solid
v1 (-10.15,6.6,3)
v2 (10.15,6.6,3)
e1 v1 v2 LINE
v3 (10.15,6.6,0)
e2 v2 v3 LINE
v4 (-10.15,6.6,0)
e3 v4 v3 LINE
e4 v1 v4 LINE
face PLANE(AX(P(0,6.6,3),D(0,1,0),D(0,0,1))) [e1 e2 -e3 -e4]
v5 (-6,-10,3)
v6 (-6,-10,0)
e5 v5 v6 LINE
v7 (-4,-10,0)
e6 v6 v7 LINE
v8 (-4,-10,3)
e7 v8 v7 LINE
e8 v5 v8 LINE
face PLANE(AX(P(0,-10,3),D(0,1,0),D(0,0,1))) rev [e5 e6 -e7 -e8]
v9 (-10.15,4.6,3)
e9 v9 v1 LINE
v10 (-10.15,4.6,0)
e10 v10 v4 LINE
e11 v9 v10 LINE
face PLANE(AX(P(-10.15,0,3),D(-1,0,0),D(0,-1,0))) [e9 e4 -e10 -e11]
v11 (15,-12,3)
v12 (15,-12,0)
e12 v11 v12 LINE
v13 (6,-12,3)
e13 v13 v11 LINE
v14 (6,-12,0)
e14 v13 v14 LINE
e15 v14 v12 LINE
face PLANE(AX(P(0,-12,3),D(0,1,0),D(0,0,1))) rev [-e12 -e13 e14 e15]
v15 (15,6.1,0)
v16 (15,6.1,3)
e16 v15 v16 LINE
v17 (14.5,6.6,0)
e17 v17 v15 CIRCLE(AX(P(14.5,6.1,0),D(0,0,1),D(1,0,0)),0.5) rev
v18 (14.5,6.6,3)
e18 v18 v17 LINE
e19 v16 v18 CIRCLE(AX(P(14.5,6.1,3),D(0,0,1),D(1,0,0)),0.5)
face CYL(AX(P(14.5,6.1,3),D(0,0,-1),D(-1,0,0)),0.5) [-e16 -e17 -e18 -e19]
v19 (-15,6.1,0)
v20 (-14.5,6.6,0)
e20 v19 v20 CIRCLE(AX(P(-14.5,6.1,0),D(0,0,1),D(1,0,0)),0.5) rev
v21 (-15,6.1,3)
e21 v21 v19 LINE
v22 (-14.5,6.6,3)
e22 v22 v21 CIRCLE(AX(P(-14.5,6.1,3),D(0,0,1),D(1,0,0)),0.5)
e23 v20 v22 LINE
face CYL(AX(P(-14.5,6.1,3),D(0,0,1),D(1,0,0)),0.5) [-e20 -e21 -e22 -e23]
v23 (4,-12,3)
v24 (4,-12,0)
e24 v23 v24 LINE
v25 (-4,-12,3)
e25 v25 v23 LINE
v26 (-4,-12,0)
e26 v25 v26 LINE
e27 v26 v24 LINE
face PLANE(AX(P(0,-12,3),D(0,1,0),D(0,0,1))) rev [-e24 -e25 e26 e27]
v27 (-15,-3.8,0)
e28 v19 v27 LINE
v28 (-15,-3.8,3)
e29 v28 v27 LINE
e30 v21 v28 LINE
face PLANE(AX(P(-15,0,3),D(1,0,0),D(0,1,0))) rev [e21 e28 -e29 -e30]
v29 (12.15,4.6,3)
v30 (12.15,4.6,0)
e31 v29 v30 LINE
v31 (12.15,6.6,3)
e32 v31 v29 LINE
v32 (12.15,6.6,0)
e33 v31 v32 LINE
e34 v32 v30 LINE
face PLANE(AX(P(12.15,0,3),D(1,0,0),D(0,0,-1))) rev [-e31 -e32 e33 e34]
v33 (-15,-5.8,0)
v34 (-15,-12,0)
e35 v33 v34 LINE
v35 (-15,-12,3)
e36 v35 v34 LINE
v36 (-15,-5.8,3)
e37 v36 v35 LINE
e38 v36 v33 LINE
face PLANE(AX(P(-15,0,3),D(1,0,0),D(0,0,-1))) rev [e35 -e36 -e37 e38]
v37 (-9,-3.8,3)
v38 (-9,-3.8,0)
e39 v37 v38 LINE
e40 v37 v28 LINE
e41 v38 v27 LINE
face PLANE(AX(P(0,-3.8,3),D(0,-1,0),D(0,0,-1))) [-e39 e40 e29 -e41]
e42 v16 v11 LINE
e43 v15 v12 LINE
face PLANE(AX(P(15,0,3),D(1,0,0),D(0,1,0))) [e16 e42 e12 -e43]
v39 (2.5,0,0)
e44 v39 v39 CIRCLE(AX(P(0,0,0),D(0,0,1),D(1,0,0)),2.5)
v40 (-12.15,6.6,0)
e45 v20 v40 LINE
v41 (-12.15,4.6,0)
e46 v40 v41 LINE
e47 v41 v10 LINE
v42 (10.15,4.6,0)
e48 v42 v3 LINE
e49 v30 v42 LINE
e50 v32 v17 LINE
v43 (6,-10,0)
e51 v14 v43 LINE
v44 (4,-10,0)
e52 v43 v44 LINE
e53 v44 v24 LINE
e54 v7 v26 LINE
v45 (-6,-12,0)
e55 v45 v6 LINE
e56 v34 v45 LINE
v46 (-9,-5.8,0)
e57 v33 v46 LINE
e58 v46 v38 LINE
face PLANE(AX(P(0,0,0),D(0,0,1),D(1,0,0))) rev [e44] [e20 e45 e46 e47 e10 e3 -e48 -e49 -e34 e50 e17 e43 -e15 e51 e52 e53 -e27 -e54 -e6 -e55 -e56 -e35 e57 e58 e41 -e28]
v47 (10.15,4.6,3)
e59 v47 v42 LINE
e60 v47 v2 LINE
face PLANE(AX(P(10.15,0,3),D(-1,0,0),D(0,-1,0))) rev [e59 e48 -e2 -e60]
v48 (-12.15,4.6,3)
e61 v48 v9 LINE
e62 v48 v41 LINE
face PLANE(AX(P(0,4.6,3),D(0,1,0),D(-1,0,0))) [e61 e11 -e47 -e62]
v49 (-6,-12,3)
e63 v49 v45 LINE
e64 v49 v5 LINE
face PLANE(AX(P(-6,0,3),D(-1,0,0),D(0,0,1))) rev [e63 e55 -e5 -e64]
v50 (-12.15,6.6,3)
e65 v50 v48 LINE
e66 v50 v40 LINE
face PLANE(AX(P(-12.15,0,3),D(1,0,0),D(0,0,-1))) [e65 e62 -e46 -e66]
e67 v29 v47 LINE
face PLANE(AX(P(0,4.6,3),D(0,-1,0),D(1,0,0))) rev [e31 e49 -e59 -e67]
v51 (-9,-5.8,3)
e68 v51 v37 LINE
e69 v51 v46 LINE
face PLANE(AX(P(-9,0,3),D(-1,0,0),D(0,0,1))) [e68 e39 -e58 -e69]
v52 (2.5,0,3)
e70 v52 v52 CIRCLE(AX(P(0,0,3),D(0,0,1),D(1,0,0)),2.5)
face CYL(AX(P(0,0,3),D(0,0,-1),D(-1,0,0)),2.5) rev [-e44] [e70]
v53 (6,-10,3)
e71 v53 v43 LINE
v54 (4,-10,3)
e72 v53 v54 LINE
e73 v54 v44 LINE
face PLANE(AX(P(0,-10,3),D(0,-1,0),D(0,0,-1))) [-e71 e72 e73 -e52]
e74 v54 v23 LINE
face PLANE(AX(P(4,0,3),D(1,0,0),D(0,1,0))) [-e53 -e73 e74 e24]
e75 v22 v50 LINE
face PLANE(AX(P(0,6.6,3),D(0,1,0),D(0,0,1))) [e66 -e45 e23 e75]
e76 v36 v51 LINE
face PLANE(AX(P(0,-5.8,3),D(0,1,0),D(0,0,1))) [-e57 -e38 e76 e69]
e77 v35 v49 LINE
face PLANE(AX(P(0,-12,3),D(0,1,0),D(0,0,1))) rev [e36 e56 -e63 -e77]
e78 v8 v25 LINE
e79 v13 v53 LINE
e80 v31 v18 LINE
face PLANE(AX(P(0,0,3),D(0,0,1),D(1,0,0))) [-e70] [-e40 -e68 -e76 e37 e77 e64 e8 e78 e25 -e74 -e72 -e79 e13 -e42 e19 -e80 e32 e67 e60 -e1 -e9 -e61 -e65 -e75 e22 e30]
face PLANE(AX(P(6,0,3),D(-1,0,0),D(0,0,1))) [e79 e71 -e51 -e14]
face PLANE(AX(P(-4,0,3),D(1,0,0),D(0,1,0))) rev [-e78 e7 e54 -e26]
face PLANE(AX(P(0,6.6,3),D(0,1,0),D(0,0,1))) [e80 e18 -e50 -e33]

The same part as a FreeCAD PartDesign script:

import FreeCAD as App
import Part
import Sketcher


def edges_at(feature, points):
    """Names of the edges that pass closest to the given points."""
    edges = feature.Shape.Edges
    near = lambda p: min(range(len(edges)), key=lambda i: edges[i].distToShape(Part.Vertex(*p))[0])
    return sorted({f"Edge{near(p) + 1}" for p in points})


def add_polygon(sketch, points):
    """Adds a closed chain of lines whose ends are joined by coincident constraints."""
    first, n = sketch.GeometryCount, len(points)
    for a, b in zip(points, points[1:] + points[:1]):
        sketch.addGeometry(Part.LineSegment(App.Vector(*a, 0), App.Vector(*b, 0)), False)
    for i in range(n):
        sketch.addConstraint(Sketcher.Constraint("Coincident", first + i, 2, first + (i + 1) % n, 1))

doc = App.newDocument("Part")
body = doc.addObject("PartDesign::Body", "Body")

# Sketch on XY plane
sketch1 = body.newObject("Sketcher::SketchObject", "Sketch")
sketch1.AttachmentSupport = (doc.getObject("XY_Plane"), [""])
sketch1.MapMode = "FlatFace"
add_polygon(sketch1, [(-12.2, 6.6), (-15, 6.6), (-15, -3.8), (-9, -3.8), (-9, -5.8), (-15, -5.8), (-15, -12), (-6, -12), (-6, -10), (-4, -10), (-4, -12), (4, -12), (4, -10), (6, -10), (6, -12), (15, -12), (15, 6.6), (12.2, 6.6), (12.2, 4.6), (10.2, 4.6), (10.2, 6.6), (-10.2, 6.6), (-10.2, 4.6), (-12.2, 4.6)])  # lines 0-23
sketch1.addGeometry(Part.Circle(App.Vector(0, 0, 0), App.Vector(0, 0, 1), 2.5), False)  # 24
sketch1.addConstraint(Sketcher.Constraint("Horizontal", 0))
sketch1.addConstraint(Sketcher.Constraint("Vertical", 1))
sketch1.addConstraint(Sketcher.Constraint("Horizontal", 2))
sketch1.addConstraint(Sketcher.Constraint("Vertical", 3))
sketch1.addConstraint(Sketcher.Constraint("Horizontal", 4))
sketch1.addConstraint(Sketcher.Constraint("Vertical", 5))
sketch1.addConstraint(Sketcher.Constraint("Horizontal", 6))
sketch1.addConstraint(Sketcher.Constraint("Vertical", 7))
sketch1.addConstraint(Sketcher.Constraint("Horizontal", 8))
sketch1.addConstraint(Sketcher.Constraint("Vertical", 9))
sketch1.addConstraint(Sketcher.Constraint("Horizontal", 10))
sketch1.addConstraint(Sketcher.Constraint("Vertical", 11))
sketch1.addConstraint(Sketcher.Constraint("Horizontal", 12))
sketch1.addConstraint(Sketcher.Constraint("Vertical", 13))
sketch1.addConstraint(Sketcher.Constraint("Horizontal", 14))
sketch1.addConstraint(Sketcher.Constraint("Vertical", 15))
sketch1.addConstraint(Sketcher.Constraint("Horizontal", 16))
sketch1.addConstraint(Sketcher.Constraint("Vertical", 17))
sketch1.addConstraint(Sketcher.Constraint("Horizontal", 18))
sketch1.addConstraint(Sketcher.Constraint("Vertical", 19))
sketch1.addConstraint(Sketcher.Constraint("Horizontal", 20))
sketch1.addConstraint(Sketcher.Constraint("Vertical", 21))
sketch1.addConstraint(Sketcher.Constraint("Horizontal", 22))
sketch1.addConstraint(Sketcher.Constraint("Vertical", 23))
sketch1.addConstraint(Sketcher.Constraint("Coincident", 24, 3, -1, 1))
sketch1.addConstraint(Sketcher.Constraint("Symmetric", 8, 2, 11, 2, -2))
sketch1.addConstraint(Sketcher.Constraint("Symmetric", 6, 2, 13, 2, -2))
sketch1.addConstraint(Sketcher.Constraint("Symmetric", 0, 2, 15, 2, -2))
sketch1.addConstraint(Sketcher.Constraint("Symmetric", 18, 2, 21, 2, -2))
sketch1.addConstraint(Sketcher.Constraint("Horizontal", 6, 2, 9, 2))
sketch1.addConstraint(Sketcher.Constraint("Horizontal", 16, 2, 19, 2))
sketch1.addConstraint(Sketcher.Constraint("Vertical", 1, 2, 4, 2))
sketch1.addConstraint(Sketcher.Constraint("Equal", 0, 16))
sketch1.addConstraint(Sketcher.Constraint("Equal", 12, 18))
sketch1.addConstraint(Sketcher.Constraint("Equal", 22, 3))
sketch1.addConstraint(Sketcher.Constraint("Equal", 3, 7))
sketch1.addConstraint(Sketcher.Constraint("Equal", 13, 17))
sketch1.addConstraint(Sketcher.Constraint("Diameter", 24, 5.0))
sketch1.addConstraint(Sketcher.Constraint("DistanceX", 2, 1, 2, 2, 6.0))
sketch1.addConstraint(Sketcher.Constraint("DistanceX", 6, 1, 6, 2, 9.0))
sketch1.addConstraint(Sketcher.Constraint("DistanceX", 8, 1, 8, 2, 2.0))
sketch1.addConstraint(Sketcher.Constraint("DistanceX", 10, 1, 10, 2, 8.0))
sketch1.addConstraint(Sketcher.Constraint("DistanceX", 20, 2, 20, 1, 20.3))
sketch1.addConstraint(Sketcher.Constraint("DistanceY", 1, 2, 1, 1, 10.4))
sketch1.addConstraint(Sketcher.Constraint("DistanceY", 5, 2, 5, 1, 6.2))
sketch1.addConstraint(Sketcher.Constraint("DistanceY", 5, 2, -1, 1, 12.0))
pad1 = body.newObject("PartDesign::Pad", "Pad")
pad1.Profile = sketch1
pad1.Length = 3
doc.recompute()

fillet = body.newObject("PartDesign::Fillet", "Fillet")
fillet.Base = (pad1, edges_at(pad1, [(-15, 6.6, 1.5), (15, 6.6, 1.5)]))
fillet.Radius = 0.5

doc.recompute()
